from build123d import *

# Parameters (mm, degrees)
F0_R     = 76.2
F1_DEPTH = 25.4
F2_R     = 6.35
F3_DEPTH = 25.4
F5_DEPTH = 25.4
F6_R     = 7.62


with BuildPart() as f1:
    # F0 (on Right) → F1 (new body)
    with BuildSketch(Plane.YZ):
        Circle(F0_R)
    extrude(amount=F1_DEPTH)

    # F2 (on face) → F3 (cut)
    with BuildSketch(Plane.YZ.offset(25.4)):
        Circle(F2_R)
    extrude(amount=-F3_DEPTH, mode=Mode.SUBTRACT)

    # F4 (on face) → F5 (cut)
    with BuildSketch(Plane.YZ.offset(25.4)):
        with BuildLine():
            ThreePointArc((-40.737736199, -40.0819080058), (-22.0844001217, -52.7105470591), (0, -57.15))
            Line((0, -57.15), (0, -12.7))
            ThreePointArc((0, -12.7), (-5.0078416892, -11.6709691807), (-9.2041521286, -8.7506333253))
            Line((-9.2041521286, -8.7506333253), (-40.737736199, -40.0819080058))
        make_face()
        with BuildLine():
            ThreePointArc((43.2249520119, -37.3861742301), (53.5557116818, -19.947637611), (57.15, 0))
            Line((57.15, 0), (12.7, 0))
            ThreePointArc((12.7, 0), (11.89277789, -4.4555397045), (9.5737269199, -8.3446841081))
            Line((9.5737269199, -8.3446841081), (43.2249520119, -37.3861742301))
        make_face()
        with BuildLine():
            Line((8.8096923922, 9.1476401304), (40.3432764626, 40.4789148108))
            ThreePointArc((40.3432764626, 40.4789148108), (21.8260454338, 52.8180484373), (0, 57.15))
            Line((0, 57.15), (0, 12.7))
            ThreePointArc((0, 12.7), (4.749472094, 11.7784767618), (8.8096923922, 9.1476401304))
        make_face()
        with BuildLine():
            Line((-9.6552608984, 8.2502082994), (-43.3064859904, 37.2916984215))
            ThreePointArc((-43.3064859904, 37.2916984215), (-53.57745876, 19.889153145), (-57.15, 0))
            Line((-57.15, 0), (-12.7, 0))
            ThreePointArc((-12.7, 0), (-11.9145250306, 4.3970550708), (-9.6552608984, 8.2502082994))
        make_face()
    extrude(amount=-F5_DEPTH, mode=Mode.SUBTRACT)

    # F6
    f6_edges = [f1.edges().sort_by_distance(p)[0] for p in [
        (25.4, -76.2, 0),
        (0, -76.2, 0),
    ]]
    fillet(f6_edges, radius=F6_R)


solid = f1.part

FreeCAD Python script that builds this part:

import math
import FreeCAD as App
import Part
import Sketcher

V = App.Vector
Q = App.Units.Quantity


def edges_at(feature, points):
    """Names of the edges that pass closest to the given points."""
    edges = feature.Shape.Edges
    near = lambda p: min(range(len(edges)), key=lambda i: edges[i].distToShape(Part.Vertex(*p))[0])
    return sorted({f"Edge{near(p) + 1}" for p in points})

doc = App.newDocument("Part")
params = doc.addObject("Spreadsheet::Sheet", "Params")
for row, (alias, value) in enumerate([
    ("sketch1_diameter", "6 in"),
    ("pad1_length", "1 in"),
    ("sketch2_diameter", "0.5 in"),
    ("pocket1_length", "1 in"),
    ("sketch3_radius", "0.5 in"),
    ("sketch3_radius2", "2.25 in"),
    ("pocket2_length", "1 in"),
    ("fillet_radius", "0.3 in"),
], start=1):
    params.set(f"A{row}", alias)
    params.set(f"B{row}", "=" + value)
    params.setAlias(f"B{row}", alias)

body = doc.addObject("PartDesign::Body", "Body")

sketch1 = body.newObject("Sketcher::SketchObject", "Sketch")
sketch1.AttachmentSupport = (doc.getObject("YZ_Plane"), [""])
sketch1.MapMode = "FlatFace"
sketch1.addGeometry(Part.Circle(V(0, 0, 0), V(0, 0, 1), 76.2), False)
sketch1.addConstraint([
    Sketcher.Constraint("Coincident", 0, 3, -1, 1),
    Sketcher.Constraint("Diameter", 0, Q("6 in")),
])
sketch1.setExpression("Constraints[1]", "Params.sketch1_diameter")
pad1 = body.newObject("PartDesign::Pad", "Pad")
pad1.Profile = sketch1
pad1.setExpression("Length", "Params.pad1_length")

sketch2 = body.newObject("Sketcher::SketchObject", "Sketch001")
sketch2.AttachmentSupport = (doc.getObject("YZ_Plane"), [""])
sketch2.MapMode = "FlatFace"
sketch2.AttachmentOffset = App.Placement(V(0, 0, 1 * 25.4), App.Rotation())
sketch2.addGeometry(Part.Circle(V(0, 0, 0), V(0, 0, 1), 6.35), False)
sketch2.addConstraint([
    Sketcher.Constraint("Coincident", 0, 3, -1, 1),
    Sketcher.Constraint("Diameter", 0, Q("0.5 in")),
])
sketch2.setExpression("Constraints[1]", "Params.sketch2_diameter")
pocket1 = body.newObject("PartDesign::Pocket", "Pocket")
pocket1.Profile = sketch2
pocket1.setExpression("Length", "Params.pocket1_length")

sketch3 = body.newObject("Sketcher::SketchObject", "Sketch002")
sketch3.AttachmentSupport = (doc.getObject("YZ_Plane"), [""])
sketch3.MapMode = "FlatFace"
sketch3.AttachmentOffset = App.Placement(V(0, 0, 1 * 25.4), App.Rotation())
sketch3.addGeometry([
    Part.ArcOfCircle(Part.Circle(V(0, 0, 0), V(0, 0, 1), 57.15), math.radians(-135.464929), math.radians(-90)),
    Part.LineSegment(V(0, -57.15, 0), V(0, -12.7, 0)),
    Part.ArcOfCircle(Part.Circle(V(0, 0, 0), V(0, 0, 1), 12.7), math.radians(-136.446923), math.radians(-90)),
    Part.LineSegment(V(-9.204152, -8.750633, 0), V(-40.737736, -40.081908, 0)),
    Part.ArcOfCircle(Part.Circle(V(0, 0, 0), V(0, 0, 1), 57.15), math.radians(-40.85722), math.radians(0)),
    Part.LineSegment(V(57.15, 0, 0), V(12.7, 0, 0)),
    Part.ArcOfCircle(Part.Circle(V(0, 0, 0), V(0, 0, 1), 12.7), math.radians(-41.076168), math.radians(0)),
    Part.LineSegment(V(9.573727, -8.344684, 0), V(43.224952, -37.386174, 0)),
    Part.LineSegment(V(8.809692, 9.14764, 0), V(40.343276, 40.478915, 0)),
    Part.ArcOfCircle(Part.Circle(V(0, 0, 0), V(0, 0, 1), 57.15), math.radians(45.096155), math.radians(90)),
    Part.LineSegment(V(0, 57.15, 0), V(0, 12.7, 0)),
    Part.ArcOfCircle(Part.Circle(V(0, 0, 0), V(0, 0, 1), 12.7), math.radians(46.07815), math.radians(90)),
    Part.LineSegment(V(-9.655261, 8.250208, 0), V(-43.306486, 37.291698, 0)),
    Part.ArcOfCircle(Part.Circle(V(0, 0, 0), V(0, 0, 1), 57.15), math.radians(139.267892), math.radians(180)),
    Part.LineSegment(V(-57.15, 0, 0), V(-12.7, 0, 0)),
    Part.ArcOfCircle(Part.Circle(V(0, 0, 0), V(0, 0, 1), 12.7), math.radians(139.486839), math.radians(180)),
], False)
sketch3.addConstraint([
    Sketcher.Constraint("Coincident", 0, 2, 1, 1),
    Sketcher.Constraint("Coincident", 1, 2, 2, 2),
    Sketcher.Constraint("Coincident", 2, 1, 3, 1),
    Sketcher.Constraint("Coincident", 3, 2, 0, 1),
    Sketcher.Constraint("Coincident", 4, 2, 5, 1),
    Sketcher.Constraint("Coincident", 5, 2, 6, 2),
    Sketcher.Constraint("Coincident", 6, 1, 7, 1),
    Sketcher.Constraint("Coincident", 7, 2, 4, 1),
    Sketcher.Constraint("Coincident", 8, 2, 9, 1),
    Sketcher.Constraint("Coincident", 9, 2, 10, 1),
    Sketcher.Constraint("Coincident", 10, 2, 11, 2),
    Sketcher.Constraint("Coincident", 11, 1, 8, 1),
    Sketcher.Constraint("Coincident", 12, 2, 13, 1),
    Sketcher.Constraint("Coincident", 13, 2, 14, 1),
    Sketcher.Constraint("Coincident", 14, 2, 15, 2),
    Sketcher.Constraint("Coincident", 15, 1, 12, 1),
    Sketcher.Constraint("Vertical", 1),
    Sketcher.Constraint("Horizontal", 5),
    Sketcher.Constraint("Vertical", 10),
    Sketcher.Constraint("Horizontal", 14),
    Sketcher.Constraint("Coincident", 0, 3, -1, 1),
    Sketcher.Constraint("Coincident", 2, 3, -1, 1),
    Sketcher.Constraint("Coincident", 4, 3, -1, 1),
    Sketcher.Constraint("Coincident", 6, 3, -1, 1),
    Sketcher.Constraint("Coincident", 9, 3, -1, 1),
    Sketcher.Constraint("Coincident", 11, 3, -1, 1),
    Sketcher.Constraint("Coincident", 13, 3, -1, 1),
    Sketcher.Constraint("Coincident", 15, 3, -1, 1),
    Sketcher.Constraint("Equal", 0, 4),
    Sketcher.Constraint("Equal", 2, 6),
    Sketcher.Constraint("Equal", 4, 9),
    Sketcher.Constraint("Equal", 6, 11),
    Sketcher.Constraint("Equal", 9, 13),
    Sketcher.Constraint("Equal", 11, 15),
    Sketcher.Constraint("PointOnObject", 0, 2, -2),
    Sketcher.Constraint("PointOnObject", 4, 2, -1),
    Sketcher.Constraint("PointOnObject", 9, 2, -2),
    Sketcher.Constraint("PointOnObject", 13, 2, -1),
    Sketcher.Constraint("Parallel", 3, 8),
    Sketcher.Constraint("Parallel", 7, 12),
    Sketcher.Constraint("Equal", 3, 8),
    Sketcher.Constraint("Equal", 7, 12),
    Sketcher.Constraint("Radius", 2, Q("0.5 in")),
    Sketcher.Constraint("Radius", 0, Q("2.25 in")),
    Sketcher.Constraint("Distance", 3, Q("44.452398 mm")),
    Sketcher.Constraint("DistanceY", -1, 1, 12, 2, Q("37.291698 mm")),
    Sketcher.Constraint("DistanceY", 3, 2, -1, 1, Q("40.081908 mm")),
    Sketcher.Constraint("DistanceX", 15, 1, -1, 1, Q("9.655261 mm")),
])
sketch3.setExpression("Constraints[42]", "Params.sketch3_radius")
sketch3.setExpression("Constraints[43]", "Params.sketch3_radius2")
pocket2 = body.newObject("PartDesign::Pocket", "Pocket001")
pocket2.Profile = sketch3
pocket2.setExpression("Length", "Params.pocket2_length")
doc.recompute()

fillet = body.newObject("PartDesign::Fillet", "Fillet")
fillet.Base = (pocket2, edges_at(pocket2, [(25.4, -76.2, 0), (0, -76.2, 0)]))
fillet.setExpression("Radius", "Params.fillet_radius")

doc.recompute()
